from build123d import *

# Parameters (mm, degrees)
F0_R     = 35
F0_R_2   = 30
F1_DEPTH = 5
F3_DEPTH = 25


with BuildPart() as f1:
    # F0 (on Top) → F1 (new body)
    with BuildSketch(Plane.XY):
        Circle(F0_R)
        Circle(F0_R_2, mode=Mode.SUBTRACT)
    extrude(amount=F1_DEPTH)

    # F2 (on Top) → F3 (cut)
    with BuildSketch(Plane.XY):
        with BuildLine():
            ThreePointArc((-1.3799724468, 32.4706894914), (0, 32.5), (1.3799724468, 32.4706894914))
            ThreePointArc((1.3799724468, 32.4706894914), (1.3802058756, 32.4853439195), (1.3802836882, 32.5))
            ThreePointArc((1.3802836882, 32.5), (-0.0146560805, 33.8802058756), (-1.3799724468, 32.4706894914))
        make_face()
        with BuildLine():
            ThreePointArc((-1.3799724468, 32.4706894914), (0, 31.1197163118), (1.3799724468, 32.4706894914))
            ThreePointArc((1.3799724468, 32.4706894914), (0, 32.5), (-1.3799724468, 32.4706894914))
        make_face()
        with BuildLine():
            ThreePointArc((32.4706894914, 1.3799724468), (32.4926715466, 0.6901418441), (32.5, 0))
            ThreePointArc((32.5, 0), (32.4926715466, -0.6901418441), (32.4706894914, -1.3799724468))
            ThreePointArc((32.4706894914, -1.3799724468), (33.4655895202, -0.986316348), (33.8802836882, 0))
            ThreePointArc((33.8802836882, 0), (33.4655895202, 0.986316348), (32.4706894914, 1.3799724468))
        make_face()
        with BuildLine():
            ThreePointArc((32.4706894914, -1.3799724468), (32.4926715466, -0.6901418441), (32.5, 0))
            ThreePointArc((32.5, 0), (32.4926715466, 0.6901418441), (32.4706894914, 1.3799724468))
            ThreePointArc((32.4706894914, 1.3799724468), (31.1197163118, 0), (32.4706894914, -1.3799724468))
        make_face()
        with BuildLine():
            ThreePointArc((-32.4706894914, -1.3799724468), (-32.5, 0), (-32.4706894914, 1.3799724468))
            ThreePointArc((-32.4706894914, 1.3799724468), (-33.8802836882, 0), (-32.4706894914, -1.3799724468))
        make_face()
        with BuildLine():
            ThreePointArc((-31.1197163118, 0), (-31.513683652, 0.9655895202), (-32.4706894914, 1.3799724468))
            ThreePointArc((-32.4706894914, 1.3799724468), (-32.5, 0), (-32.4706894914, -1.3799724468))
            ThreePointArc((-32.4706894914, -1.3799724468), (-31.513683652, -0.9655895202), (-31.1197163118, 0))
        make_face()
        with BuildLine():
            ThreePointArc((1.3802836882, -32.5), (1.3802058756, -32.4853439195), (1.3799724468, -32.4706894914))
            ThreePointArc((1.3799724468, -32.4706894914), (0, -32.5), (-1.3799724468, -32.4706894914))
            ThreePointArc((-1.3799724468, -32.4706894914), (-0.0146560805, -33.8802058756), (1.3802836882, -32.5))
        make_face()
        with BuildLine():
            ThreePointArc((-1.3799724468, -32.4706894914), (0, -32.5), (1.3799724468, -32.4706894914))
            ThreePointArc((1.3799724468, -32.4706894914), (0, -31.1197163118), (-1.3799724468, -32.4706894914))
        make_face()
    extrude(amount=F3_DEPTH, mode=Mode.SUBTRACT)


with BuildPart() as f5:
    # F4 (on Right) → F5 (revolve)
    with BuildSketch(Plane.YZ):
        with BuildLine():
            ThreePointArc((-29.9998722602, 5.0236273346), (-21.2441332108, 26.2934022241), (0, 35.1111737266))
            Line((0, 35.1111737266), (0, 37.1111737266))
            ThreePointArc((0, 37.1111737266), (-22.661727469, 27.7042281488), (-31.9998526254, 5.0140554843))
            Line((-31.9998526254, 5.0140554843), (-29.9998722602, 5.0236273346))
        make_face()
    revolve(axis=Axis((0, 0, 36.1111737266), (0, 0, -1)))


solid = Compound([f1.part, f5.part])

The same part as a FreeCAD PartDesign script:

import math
import FreeCAD as App
import Part
import Sketcher

V = App.Vector
Q = App.Units.Quantity

doc = App.newDocument("Part")
params = doc.addObject("Spreadsheet::Sheet", "Params")
for row, (alias, value) in enumerate([
    ("sketch1_diameter", "70 mm"),
    ("sketch1_diameter2", "60 mm"),
    ("pad1_length", "5 mm"),
    ("pocket1_length", "25 mm"),
    ("sketch3_radius", "30 mm"),
    ("sketch3_radius2", "32 mm"),
    ("revolution_angle", "360 deg"),
], start=1):
    params.set(f"A{row}", alias)
    params.set(f"B{row}", "=" + value)
    params.setAlias(f"B{row}", alias)

body = doc.addObject("PartDesign::Body", "Body")

# Sketch on XY plane
sketch1 = doc.addObject("Sketcher::SketchObject", "Sketch")
body.addObject(sketch1)
sketch1.AttachmentSupport = (doc.XY_Plane, [""])
sketch1.MapMode = "FlatFace"
sketch1.addGeometry(Part.Circle(V(0, 0, 0), V(0, 0, 1), 35), False)
sketch1.addGeometry(Part.Circle(V(0, 0, 0), V(0, 0, 1), 30), False)
sketch1.addConstraint(Sketcher.Constraint("Coincident", 0, 3, -1, 1))
sketch1.addConstraint(Sketcher.Constraint("Coincident", 1, 3, -1, 1))
sketch1.addConstraint(Sketcher.Constraint("Diameter", 0, Q("70 mm")))
sketch1.addConstraint(Sketcher.Constraint("Diameter", 1, Q("60 mm")))
sketch1.setExpression("Constraints[2]", "Params.sketch1_diameter")
sketch1.setExpression("Constraints[3]", "Params.sketch1_diameter2")
pad1 = doc.addObject("PartDesign::Pad", "Pad")
body.addObject(pad1)
pad1.Profile = sketch1
pad1.setExpression("Length", "Params.pad1_length")

# Sketch on XY plane
sketch2 = doc.addObject("Sketcher::SketchObject", "Sketch001")
body.addObject(sketch2)
sketch2.AttachmentSupport = (doc.XY_Plane, [""])
sketch2.MapMode = "FlatFace"
sketch2.addGeometry(Part.ArcOfCircle(Part.Circle(V(-0.000001, 32.5, 0), V(0, 0, 1), 1.380285), math.radians(-1.216775), math.radians(0)), False)
sketch2.addGeometry(Part.ArcOfCircle(Part.Circle(V(0, 32.5, 0), V(0, 0, 1), 1.380284), math.radians(0), math.radians(181.216775)), False)
sketch2.addGeometry(Part.ArcOfCircle(Part.Circle(V(0, 32.5, 0), V(0, 0, 1), 1.380284), math.radians(-178.783225), math.radians(-1.216775)), False)
sketch2.addGeometry(Part.ArcOfCircle(Part.Circle(V(32.5, 0, 0), V(0, 0, 1), 1.380284), math.radians(-91.216775), math.radians(0)), False)
sketch2.addGeometry(Part.ArcOfCircle(Part.Circle(V(32.5, 0, 0), V(0, 0, 1), 1.380284), math.radians(0), math.radians(91.216775)), False)
sketch2.addGeometry(Part.ArcOfCircle(Part.Circle(V(32.5, 0, 0), V(0, 0, 1), 1.380284), math.radians(91.216775), math.radians(268.783225)), False)
sketch2.addGeometry(Part.ArcOfCircle(Part.Circle(V(-32.5, 0, 0), V(0, 0, 1), 1.380284), math.radians(88.783225), math.radians(271.216775)), False)
sketch2.addGeometry(Part.ArcOfCircle(Part.Circle(V(-32.5, 0, 0), V(0, 0, 1), 1.380284), math.radians(-88.783225), math.radians(0)), False)
sketch2.addGeometry(Part.ArcOfCircle(Part.Circle(V(-32.5, 0, 0), V(0, 0, 1), 1.380284), math.radians(0), math.radians(88.783225)), False)
sketch2.addGeometry(Part.ArcOfCircle(Part.Circle(V(-0.000001, -32.5, 0), V(0, 0, 1), 1.380285), math.radians(0), math.radians(1.216775)), False)
sketch2.addGeometry(Part.ArcOfCircle(Part.Circle(V(0, -32.5, 0), V(0, 0, 1), 1.380284), math.radians(1.216775), math.radians(178.783225)), False)
sketch2.addGeometry(Part.ArcOfCircle(Part.Circle(V(0, -32.5, 0), V(0, 0, 1), 1.380284), math.radians(178.783225), math.radians(360)), False)
sketch2.addConstraint(Sketcher.Constraint("Coincident", 0, 2, 1, 1))
sketch2.addConstraint(Sketcher.Constraint("Coincident", 1, 2, 2, 1))
sketch2.addConstraint(Sketcher.Constraint("Coincident", 2, 2, 0, 1))
sketch2.addConstraint(Sketcher.Constraint("Coincident", 3, 2, 4, 1))
sketch2.addConstraint(Sketcher.Constraint("Coincident", 4, 2, 5, 1))
sketch2.addConstraint(Sketcher.Constraint("Coincident", 5, 2, 3, 1))
sketch2.addConstraint(Sketcher.Constraint("Coincident", 6, 2, 7, 1))
sketch2.addConstraint(Sketcher.Constraint("Coincident", 7, 2, 8, 1))
sketch2.addConstraint(Sketcher.Constraint("Coincident", 8, 2, 6, 1))
sketch2.addConstraint(Sketcher.Constraint("Coincident", 9, 2, 10, 1))
sketch2.addConstraint(Sketcher.Constraint("Coincident", 10, 2, 11, 1))
sketch2.addConstraint(Sketcher.Constraint("Coincident", 11, 2, 9, 1))
sketch2.addConstraint(Sketcher.Constraint("Coincident", 1, 3, 0, 3))
sketch2.addConstraint(Sketcher.Constraint("Coincident", 4, 3, 3, 3))
sketch2.addConstraint(Sketcher.Constraint("Coincident", 7, 3, 6, 3))
sketch2.addConstraint(Sketcher.Constraint("Coincident", 10, 3, 9, 3))
sketch2.addConstraint(Sketcher.Constraint("PointOnObject", 0, 3, -2))
sketch2.addConstraint(Sketcher.Constraint("PointOnObject", 3, 3, -1))
sketch2.addConstraint(Sketcher.Constraint("PointOnObject", 6, 3, -1))
sketch2.addConstraint(Sketcher.Constraint("PointOnObject", 8, 3, -1))
sketch2.addConstraint(Sketcher.Constraint("PointOnObject", 9, 3, -2))
sketch2.addConstraint(Sketcher.Constraint("PointOnObject", 11, 3, -2))
sketch2.addConstraint(Sketcher.Constraint("PointOnObject", 3, 2, -1))
sketch2.addConstraint(Sketcher.Constraint("PointOnObject", 7, 2, -1))
sketch2.addConstraint(Sketcher.Constraint("DistanceX", 6, 3, 3, 3, Q("65 mm")))
sketch2.addConstraint(Sketcher.Constraint("DistanceY", -1, 1, 0, 3, Q("32.5 mm")))
sketch2.addConstraint(Sketcher.Constraint("DistanceY", -1, 1, 2, 3, Q("32.5 mm")))
sketch2.addConstraint(Sketcher.Constraint("DistanceX", -1, 1, 3, 3, Q("32.5 mm")))
sketch2.addConstraint(Sketcher.Constraint("DistanceX", -1, 1, 5, 3, Q("32.5 mm")))
sketch2.addConstraint(Sketcher.Constraint("DistanceY", 9, 3, -1, 1, Q("32.5 mm")))
sketch2.addConstraint(Sketcher.Constraint("DistanceY", -1, 1, 0, 2, Q("32.5 mm")))
sketch2.addConstraint(Sketcher.Constraint("DistanceY", 11, 2, -1, 1, Q("32.5 mm")))
sketch2.addConstraint(Sketcher.Constraint("DistanceX", 0, 2, 3, 2, Q("32.5 mm")))
sketch2.addConstraint(Sketcher.Constraint("Radius", 0, Q("1.380285 mm")))
sketch2.addConstraint(Sketcher.Constraint("Radius", 6, Q("1.380284 mm")))
sketch2.addConstraint(Sketcher.Constraint("Radius", 9, Q("1.380285 mm")))
sketch2.addConstraint(Sketcher.Constraint("DistanceY", -1, 1, 1, 2, Q("32.470689 mm")))
sketch2.addConstraint(Sketcher.Constraint("DistanceY", -1, 1, 2, 2, Q("32.470689 mm")))
sketch2.addConstraint(Sketcher.Constraint("DistanceX", -1, 1, 4, 2, Q("32.470689 mm")))
sketch2.addConstraint(Sketcher.Constraint("DistanceX", -1, 1, 5, 2, Q("32.470689 mm")))
sketch2.addConstraint(Sketcher.Constraint("DistanceX", 6, 2, -1, 1, Q("32.470689 mm")))
sketch2.addConstraint(Sketcher.Constraint("DistanceX", 8, 2, -1, 1, Q("32.470689 mm")))
sketch2.addConstraint(Sketcher.Constraint("DistanceY", 9, 2, -1, 1, Q("32.470689 mm")))
sketch2.addConstraint(Sketcher.Constraint("DistanceY", 10, 2, -1, 1, Q("32.470689 mm")))
pocket1 = doc.addObject("PartDesign::Pocket", "Pocket")
body.addObject(pocket1)
pocket1.Profile = sketch2
pocket1.setExpression("Length", "Params.pocket1_length")
pocket1.Reversed = True
body2 = doc.addObject("PartDesign::Body", "Body001")

# Sketch on YZ plane
sketch3 = doc.addObject("Sketcher::SketchObject", "Sketch002")
body2.addObject(sketch3)
sketch3.AttachmentSupport = (doc.getObject("YZ_Plane001"), [""])
sketch3.MapMode = "FlatFace"
sketch3.addGeometry(Part.ArcOfCircle(Part.Circle(V(0, 5.1, 0), V(0, 0, 1), 30), math.radians(90), math.radians(180)), False)
sketch3.addGeometry(Part.LineSegment(V(0, 35.1, 0), V(0, 37.1, 0)), False)
sketch3.addGeometry(Part.ArcOfCircle(Part.Circle(V(0, 5.1, 0), V(0, 0, 1), 32), math.radians(90), math.radians(180)), False)
sketch3.addGeometry(Part.LineSegment(V(-32, 5, 0), V(-30, 5, 0)), False)
sketch3.addConstraint(Sketcher.Constraint("Coincident", 0, 1, 1, 1))
sketch3.addConstraint(Sketcher.Constraint("Coincident", 1, 2, 2, 1))
sketch3.addConstraint(Sketcher.Constraint("Coincident", 2, 2, 3, 1))
sketch3.addConstraint(Sketcher.Constraint("Coincident", 3, 2, 0, 2))
sketch3.addConstraint(Sketcher.Constraint("Vertical", 1))
sketch3.addConstraint(Sketcher.Constraint("Coincident", 2, 3, 0, 3))
sketch3.addConstraint(Sketcher.Constraint("PointOnObject", 0, 3, -2))
sketch3.addConstraint(Sketcher.Constraint("PointOnObject", 0, 1, -2))
sketch3.addConstraint(Sketcher.Constraint("Radius", 0, Q("30 mm")))
sketch3.addConstraint(Sketcher.Constraint("Radius", 2, Q("32 mm")))
sketch3.addConstraint(Sketcher.Constraint("DistanceY", 2, 2, 0, 3, Q("0.097118 mm")))
sketch3.addConstraint(Sketcher.Constraint("DistanceY", 2, 2, 3, 2, Q("0.009572 mm")))
sketch3.addConstraint(Sketcher.Constraint("DistanceY", -1, 1, 0, 3, Q("5.111174 mm")))
sketch3.setExpression("Constraints[8]", "Params.sketch3_radius")
sketch3.setExpression("Constraints[9]", "Params.sketch3_radius2")
revolution = doc.addObject("PartDesign::Revolution", "Revolution")
body2.addObject(revolution)
revolution.Profile = sketch3
revolution.ReferenceAxis = (sketch3, ["V_Axis"])
revolution.setExpression("Angle", "Params.revolution_angle")

doc.recompute()
